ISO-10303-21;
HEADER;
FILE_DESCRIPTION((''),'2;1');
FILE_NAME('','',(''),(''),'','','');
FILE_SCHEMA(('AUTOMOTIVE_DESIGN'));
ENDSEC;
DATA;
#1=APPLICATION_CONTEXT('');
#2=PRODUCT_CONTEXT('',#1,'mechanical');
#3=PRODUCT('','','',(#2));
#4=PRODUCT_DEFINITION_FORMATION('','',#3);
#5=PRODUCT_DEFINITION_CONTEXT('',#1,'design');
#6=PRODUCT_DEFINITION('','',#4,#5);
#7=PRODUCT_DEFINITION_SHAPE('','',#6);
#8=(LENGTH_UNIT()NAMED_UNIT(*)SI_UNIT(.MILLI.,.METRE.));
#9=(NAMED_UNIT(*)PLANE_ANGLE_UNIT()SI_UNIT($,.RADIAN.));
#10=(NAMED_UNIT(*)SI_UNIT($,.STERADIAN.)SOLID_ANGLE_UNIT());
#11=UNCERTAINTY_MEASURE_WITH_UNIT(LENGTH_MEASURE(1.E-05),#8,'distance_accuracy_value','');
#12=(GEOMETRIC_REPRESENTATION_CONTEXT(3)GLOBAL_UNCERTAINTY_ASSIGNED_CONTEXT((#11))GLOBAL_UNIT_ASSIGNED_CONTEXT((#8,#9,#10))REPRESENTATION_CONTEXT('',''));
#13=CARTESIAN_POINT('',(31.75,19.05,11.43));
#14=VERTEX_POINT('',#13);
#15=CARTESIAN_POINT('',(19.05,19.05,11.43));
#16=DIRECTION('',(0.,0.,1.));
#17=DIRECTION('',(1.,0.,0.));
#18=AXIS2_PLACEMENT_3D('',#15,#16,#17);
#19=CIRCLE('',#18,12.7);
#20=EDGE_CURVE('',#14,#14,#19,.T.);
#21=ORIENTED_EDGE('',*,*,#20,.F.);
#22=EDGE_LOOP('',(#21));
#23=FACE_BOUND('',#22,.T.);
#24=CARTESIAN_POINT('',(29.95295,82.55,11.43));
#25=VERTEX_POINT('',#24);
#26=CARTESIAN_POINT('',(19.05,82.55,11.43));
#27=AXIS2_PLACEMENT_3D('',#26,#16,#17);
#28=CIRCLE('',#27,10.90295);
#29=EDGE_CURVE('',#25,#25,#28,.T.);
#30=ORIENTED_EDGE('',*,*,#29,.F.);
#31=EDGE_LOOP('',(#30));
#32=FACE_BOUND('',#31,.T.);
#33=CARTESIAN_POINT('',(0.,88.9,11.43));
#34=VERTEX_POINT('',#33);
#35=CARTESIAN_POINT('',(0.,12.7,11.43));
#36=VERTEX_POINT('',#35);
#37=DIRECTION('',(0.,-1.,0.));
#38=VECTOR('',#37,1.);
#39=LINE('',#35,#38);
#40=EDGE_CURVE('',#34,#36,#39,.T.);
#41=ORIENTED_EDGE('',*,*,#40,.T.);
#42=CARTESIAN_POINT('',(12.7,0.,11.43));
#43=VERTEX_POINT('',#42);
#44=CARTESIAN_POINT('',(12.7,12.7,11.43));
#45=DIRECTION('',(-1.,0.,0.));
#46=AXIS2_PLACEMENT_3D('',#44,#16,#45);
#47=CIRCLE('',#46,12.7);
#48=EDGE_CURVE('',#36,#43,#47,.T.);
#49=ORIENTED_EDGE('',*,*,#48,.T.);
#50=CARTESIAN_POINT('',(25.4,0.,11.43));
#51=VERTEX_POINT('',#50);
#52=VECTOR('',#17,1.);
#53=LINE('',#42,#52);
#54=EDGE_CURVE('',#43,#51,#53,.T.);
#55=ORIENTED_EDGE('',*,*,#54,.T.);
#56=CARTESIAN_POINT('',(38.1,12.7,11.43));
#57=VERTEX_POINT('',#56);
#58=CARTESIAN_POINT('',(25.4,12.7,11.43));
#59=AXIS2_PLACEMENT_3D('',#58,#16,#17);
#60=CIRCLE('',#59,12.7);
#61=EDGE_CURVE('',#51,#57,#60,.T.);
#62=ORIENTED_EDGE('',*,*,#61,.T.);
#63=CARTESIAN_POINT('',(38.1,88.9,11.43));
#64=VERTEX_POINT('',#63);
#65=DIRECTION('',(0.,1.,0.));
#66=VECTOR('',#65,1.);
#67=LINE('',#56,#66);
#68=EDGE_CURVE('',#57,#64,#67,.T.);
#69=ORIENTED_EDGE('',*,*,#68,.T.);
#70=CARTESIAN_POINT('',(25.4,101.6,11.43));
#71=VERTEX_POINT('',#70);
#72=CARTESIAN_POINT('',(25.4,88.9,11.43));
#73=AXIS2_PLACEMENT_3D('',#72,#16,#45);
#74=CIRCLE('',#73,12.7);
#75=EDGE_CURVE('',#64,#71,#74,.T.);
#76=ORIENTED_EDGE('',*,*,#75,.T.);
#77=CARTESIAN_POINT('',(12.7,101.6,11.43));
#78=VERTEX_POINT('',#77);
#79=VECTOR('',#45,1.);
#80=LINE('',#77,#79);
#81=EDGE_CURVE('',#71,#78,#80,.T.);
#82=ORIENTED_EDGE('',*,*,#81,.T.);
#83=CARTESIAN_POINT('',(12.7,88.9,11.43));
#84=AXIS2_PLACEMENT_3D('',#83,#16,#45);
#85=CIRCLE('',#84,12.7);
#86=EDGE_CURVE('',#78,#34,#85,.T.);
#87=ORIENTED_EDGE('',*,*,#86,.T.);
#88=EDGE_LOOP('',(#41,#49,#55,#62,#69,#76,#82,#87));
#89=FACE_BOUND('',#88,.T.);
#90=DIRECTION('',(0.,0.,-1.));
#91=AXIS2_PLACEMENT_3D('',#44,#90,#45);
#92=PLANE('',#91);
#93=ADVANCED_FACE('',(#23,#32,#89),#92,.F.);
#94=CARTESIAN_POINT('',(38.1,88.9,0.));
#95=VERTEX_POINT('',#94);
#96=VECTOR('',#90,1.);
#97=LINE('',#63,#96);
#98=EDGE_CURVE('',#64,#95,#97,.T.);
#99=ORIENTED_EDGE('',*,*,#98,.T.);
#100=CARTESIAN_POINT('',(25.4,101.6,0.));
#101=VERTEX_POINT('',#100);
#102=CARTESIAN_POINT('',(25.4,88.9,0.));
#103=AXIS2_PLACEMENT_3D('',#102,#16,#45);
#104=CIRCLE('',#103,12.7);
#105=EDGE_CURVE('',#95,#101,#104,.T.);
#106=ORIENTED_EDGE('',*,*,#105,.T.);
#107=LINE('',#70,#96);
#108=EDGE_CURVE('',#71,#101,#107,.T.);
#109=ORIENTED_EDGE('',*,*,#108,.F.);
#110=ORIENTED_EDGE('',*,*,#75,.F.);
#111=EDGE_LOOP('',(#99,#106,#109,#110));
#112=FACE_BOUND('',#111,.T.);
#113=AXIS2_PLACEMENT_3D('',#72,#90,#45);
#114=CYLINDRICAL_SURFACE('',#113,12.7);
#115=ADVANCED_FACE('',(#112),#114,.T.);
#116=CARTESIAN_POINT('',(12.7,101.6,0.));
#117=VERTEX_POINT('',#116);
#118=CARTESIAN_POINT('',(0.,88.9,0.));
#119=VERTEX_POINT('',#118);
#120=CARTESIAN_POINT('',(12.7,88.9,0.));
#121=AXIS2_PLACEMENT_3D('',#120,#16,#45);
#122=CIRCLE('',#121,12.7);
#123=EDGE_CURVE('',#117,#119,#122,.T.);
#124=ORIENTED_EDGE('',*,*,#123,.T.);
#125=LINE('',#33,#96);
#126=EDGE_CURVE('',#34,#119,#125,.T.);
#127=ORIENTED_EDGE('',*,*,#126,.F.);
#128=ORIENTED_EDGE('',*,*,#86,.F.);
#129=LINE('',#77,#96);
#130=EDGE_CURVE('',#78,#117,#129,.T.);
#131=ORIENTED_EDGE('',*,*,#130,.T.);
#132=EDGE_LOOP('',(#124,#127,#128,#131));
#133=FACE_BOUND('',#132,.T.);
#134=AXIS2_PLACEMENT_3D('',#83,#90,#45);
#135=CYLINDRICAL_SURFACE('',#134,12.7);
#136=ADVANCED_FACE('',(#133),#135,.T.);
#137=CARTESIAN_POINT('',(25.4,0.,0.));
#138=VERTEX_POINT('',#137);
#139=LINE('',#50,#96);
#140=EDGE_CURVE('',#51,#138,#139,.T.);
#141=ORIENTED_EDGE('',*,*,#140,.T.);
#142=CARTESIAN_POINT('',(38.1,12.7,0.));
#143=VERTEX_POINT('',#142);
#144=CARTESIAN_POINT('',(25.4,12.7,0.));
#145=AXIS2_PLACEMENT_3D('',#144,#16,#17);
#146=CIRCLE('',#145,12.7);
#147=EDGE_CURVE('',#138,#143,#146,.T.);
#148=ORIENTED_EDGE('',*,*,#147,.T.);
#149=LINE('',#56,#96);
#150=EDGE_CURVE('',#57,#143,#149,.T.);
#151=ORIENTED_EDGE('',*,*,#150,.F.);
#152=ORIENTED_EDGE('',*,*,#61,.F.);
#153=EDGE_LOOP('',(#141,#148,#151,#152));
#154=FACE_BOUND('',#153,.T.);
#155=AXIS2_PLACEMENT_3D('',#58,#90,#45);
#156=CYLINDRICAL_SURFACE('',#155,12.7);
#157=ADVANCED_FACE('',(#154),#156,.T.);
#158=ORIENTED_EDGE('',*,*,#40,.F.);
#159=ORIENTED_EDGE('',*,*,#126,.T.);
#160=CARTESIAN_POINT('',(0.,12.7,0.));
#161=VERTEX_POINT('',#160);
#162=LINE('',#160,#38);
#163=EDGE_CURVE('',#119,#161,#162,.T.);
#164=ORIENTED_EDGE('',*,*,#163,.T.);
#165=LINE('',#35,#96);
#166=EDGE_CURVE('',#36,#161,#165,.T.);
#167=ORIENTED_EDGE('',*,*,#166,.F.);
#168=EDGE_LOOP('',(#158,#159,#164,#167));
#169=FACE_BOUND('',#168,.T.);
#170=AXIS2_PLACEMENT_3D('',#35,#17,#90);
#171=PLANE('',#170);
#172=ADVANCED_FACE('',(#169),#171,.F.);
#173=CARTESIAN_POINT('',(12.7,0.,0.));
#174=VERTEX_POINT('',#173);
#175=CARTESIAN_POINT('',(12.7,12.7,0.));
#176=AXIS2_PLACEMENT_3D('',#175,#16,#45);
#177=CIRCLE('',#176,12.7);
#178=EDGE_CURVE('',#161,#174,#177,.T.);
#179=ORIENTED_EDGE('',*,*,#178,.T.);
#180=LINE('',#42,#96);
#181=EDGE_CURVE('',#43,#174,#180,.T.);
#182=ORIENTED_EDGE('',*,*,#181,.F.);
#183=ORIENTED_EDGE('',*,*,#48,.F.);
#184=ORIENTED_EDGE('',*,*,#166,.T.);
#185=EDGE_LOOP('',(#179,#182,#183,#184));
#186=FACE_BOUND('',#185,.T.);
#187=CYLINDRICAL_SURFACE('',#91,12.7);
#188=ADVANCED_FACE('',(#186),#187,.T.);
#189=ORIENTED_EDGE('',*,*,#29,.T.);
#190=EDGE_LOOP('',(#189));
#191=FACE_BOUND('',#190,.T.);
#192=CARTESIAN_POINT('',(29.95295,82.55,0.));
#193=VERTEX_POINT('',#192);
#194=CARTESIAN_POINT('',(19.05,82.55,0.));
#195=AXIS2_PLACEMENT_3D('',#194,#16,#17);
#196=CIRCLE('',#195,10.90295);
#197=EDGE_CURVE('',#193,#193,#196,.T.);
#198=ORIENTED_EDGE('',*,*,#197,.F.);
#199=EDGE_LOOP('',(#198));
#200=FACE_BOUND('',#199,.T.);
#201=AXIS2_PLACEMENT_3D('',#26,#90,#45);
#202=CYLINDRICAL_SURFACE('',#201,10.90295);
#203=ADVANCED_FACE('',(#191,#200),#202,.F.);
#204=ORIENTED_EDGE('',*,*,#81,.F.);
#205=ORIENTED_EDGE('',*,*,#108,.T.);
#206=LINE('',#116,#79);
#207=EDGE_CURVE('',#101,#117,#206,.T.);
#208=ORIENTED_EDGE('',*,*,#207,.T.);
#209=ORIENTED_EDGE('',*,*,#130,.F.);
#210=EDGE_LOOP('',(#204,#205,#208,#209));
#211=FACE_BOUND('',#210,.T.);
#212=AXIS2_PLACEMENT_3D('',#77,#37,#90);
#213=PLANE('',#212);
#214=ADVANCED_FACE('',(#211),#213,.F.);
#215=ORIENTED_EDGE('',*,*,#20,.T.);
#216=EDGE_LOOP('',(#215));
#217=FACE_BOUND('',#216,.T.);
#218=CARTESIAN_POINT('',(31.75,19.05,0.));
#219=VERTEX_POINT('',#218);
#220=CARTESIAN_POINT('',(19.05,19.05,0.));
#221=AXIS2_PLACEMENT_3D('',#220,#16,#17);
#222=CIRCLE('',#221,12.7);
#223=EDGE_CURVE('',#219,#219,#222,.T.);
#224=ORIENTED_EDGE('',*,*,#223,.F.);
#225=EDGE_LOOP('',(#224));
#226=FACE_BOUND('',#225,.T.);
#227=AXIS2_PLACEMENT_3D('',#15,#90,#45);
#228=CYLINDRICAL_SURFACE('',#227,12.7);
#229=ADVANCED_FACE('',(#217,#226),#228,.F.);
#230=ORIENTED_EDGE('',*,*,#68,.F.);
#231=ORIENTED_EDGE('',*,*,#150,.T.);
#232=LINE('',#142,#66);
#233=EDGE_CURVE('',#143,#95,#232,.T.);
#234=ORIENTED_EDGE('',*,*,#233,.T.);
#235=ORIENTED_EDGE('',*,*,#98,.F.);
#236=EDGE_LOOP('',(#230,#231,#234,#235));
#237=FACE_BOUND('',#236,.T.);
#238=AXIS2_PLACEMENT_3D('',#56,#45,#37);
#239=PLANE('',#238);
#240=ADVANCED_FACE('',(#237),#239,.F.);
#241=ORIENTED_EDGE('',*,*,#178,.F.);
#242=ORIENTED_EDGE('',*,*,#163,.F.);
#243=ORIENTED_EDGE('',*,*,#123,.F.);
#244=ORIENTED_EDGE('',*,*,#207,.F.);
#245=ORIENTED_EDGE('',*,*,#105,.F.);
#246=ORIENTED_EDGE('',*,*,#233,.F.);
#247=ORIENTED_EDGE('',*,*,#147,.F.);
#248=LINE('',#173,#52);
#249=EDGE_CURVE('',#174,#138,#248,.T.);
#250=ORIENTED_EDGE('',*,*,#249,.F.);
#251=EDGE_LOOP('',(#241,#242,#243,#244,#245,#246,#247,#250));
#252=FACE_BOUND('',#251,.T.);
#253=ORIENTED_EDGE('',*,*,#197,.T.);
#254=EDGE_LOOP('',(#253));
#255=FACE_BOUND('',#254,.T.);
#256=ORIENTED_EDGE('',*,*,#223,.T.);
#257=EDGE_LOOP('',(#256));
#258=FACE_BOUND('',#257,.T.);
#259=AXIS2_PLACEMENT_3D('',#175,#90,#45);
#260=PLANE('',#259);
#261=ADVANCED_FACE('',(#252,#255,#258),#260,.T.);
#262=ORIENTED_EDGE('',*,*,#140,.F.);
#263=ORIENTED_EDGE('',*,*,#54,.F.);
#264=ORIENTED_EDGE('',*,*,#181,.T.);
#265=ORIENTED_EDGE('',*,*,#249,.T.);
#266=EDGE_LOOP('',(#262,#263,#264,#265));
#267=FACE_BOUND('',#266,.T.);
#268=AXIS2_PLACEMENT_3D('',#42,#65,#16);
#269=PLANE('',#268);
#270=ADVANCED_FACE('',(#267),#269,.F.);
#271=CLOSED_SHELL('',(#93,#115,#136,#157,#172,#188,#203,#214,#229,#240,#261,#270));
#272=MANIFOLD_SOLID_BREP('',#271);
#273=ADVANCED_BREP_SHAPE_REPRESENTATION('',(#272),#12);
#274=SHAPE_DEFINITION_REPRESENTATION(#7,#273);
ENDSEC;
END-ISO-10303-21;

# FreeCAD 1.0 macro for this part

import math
import FreeCAD as App
import Part
import Sketcher

V = App.Vector
Q = App.Units.Quantity

doc = App.newDocument("Part")
body = doc.addObject("PartDesign::Body", "Body")

sketch1 = body.newObject("Sketcher::SketchObject", "Sketch")
sketch1.AttachmentSupport = (doc.getObject("XY_Plane"), [""])
sketch1.MapMode = "FlatFace"
sketch1.addGeometry(Part.LineSegment(V(13, 0, 0), V(25, 0, 0)), False)
sketch1.addGeometry(Part.ArcOfCircle(Part.Circle(V(25, 13, 0), V(0, 0, 1), 13), math.radians(-90), math.radians(0)), False)
sketch1.addGeometry(Part.LineSegment(V(38, 13, 0), V(38, 89, 0)), False)
sketch1.addGeometry(Part.ArcOfCircle(Part.Circle(V(25, 89, 0), V(0, 0, 1), 13), math.radians(0), math.radians(90)), False)
sketch1.addGeometry(Part.LineSegment(V(25, 102, 0), V(13, 102, 0)), False)
sketch1.addGeometry(Part.ArcOfCircle(Part.Circle(V(13, 89, 0), V(0, 0, 1), 13), math.radians(90), math.radians(180)), False)
sketch1.addGeometry(Part.LineSegment(V(0, 89, 0), V(0, 13, 0)), False)
sketch1.addGeometry(Part.ArcOfCircle(Part.Circle(V(13, 13, 0), V(0, 0, 1), 13), math.radians(180), math.radians(270)), False)
sketch1.addGeometry(Part.Circle(V(19, 19, 0), V(0, 0, 1), 13), False)
sketch1.addGeometry(Part.Circle(V(19, 83, 0), V(0, 0, 1), 11), False)
sketch1.addConstraint(Sketcher.Constraint("Tangent", 0, 2, 1, 1))
sketch1.addConstraint(Sketcher.Constraint("Tangent", 1, 2, 2, 1))
sketch1.addConstraint(Sketcher.Constraint("Tangent", 2, 2, 3, 1))
sketch1.addConstraint(Sketcher.Constraint("Tangent", 3, 2, 4, 1))
sketch1.addConstraint(Sketcher.Constraint("Tangent", 4, 2, 5, 1))
sketch1.addConstraint(Sketcher.Constraint("Tangent", 5, 2, 6, 1))
sketch1.addConstraint(Sketcher.Constraint("Tangent", 6, 2, 7, 1))
sketch1.addConstraint(Sketcher.Constraint("Tangent", 7, 2, 0, 1))
sketch1.addConstraint(Sketcher.Constraint("Horizontal", 0))
sketch1.addConstraint(Sketcher.Constraint("Vertical", 2))
sketch1.addConstraint(Sketcher.Constraint("Horizontal", 4))
sketch1.addConstraint(Sketcher.Constraint("Vertical", 6))
sketch1.addConstraint(Sketcher.Constraint("Equal", 1, 3))
sketch1.addConstraint(Sketcher.Constraint("Equal", 3, 5))
sketch1.addConstraint(Sketcher.Constraint("Equal", 5, 7))
sketch1.addConstraint(Sketcher.Constraint("Equal", 7, 8))
sketch1.addConstraint(Sketcher.Constraint("PointOnObject", 0, 2, -1))
sketch1.addConstraint(Sketcher.Constraint("PointOnObject", 5, 2, -2))
sketch1.addConstraint(Sketcher.Constraint("Vertical", 8, 3, 9, 3))
sketch1.addConstraint(Sketcher.Constraint("Diameter", 8, Q("1 in")))
sketch1.addConstraint(Sketcher.Constraint("DistanceY", 2, 1, 2, 2, Q("3 in")))
sketch1.addConstraint(Sketcher.Constraint("DistanceX", 0, 1, 0, 2, Q("0.5 in")))
sketch1.addConstraint(Sketcher.Constraint("Diameter", 9, Q("0.8585 in")))
sketch1.addConstraint(Sketcher.Constraint("DistanceY", 8, 3, 9, 3, Q("2.5 in")))
sketch1.addConstraint(Sketcher.Constraint("DistanceX", -1, 1, 8, 3, Q("0.75 in")))
sketch1.addConstraint(Sketcher.Constraint("DistanceY", -1, 1, 8, 3, Q("0.75 in")))
pad1 = body.newObject("PartDesign::Pad", "Pad")
pad1.Profile = sketch1
pad1.Length = Q("0.45 in")

doc.recompute()
